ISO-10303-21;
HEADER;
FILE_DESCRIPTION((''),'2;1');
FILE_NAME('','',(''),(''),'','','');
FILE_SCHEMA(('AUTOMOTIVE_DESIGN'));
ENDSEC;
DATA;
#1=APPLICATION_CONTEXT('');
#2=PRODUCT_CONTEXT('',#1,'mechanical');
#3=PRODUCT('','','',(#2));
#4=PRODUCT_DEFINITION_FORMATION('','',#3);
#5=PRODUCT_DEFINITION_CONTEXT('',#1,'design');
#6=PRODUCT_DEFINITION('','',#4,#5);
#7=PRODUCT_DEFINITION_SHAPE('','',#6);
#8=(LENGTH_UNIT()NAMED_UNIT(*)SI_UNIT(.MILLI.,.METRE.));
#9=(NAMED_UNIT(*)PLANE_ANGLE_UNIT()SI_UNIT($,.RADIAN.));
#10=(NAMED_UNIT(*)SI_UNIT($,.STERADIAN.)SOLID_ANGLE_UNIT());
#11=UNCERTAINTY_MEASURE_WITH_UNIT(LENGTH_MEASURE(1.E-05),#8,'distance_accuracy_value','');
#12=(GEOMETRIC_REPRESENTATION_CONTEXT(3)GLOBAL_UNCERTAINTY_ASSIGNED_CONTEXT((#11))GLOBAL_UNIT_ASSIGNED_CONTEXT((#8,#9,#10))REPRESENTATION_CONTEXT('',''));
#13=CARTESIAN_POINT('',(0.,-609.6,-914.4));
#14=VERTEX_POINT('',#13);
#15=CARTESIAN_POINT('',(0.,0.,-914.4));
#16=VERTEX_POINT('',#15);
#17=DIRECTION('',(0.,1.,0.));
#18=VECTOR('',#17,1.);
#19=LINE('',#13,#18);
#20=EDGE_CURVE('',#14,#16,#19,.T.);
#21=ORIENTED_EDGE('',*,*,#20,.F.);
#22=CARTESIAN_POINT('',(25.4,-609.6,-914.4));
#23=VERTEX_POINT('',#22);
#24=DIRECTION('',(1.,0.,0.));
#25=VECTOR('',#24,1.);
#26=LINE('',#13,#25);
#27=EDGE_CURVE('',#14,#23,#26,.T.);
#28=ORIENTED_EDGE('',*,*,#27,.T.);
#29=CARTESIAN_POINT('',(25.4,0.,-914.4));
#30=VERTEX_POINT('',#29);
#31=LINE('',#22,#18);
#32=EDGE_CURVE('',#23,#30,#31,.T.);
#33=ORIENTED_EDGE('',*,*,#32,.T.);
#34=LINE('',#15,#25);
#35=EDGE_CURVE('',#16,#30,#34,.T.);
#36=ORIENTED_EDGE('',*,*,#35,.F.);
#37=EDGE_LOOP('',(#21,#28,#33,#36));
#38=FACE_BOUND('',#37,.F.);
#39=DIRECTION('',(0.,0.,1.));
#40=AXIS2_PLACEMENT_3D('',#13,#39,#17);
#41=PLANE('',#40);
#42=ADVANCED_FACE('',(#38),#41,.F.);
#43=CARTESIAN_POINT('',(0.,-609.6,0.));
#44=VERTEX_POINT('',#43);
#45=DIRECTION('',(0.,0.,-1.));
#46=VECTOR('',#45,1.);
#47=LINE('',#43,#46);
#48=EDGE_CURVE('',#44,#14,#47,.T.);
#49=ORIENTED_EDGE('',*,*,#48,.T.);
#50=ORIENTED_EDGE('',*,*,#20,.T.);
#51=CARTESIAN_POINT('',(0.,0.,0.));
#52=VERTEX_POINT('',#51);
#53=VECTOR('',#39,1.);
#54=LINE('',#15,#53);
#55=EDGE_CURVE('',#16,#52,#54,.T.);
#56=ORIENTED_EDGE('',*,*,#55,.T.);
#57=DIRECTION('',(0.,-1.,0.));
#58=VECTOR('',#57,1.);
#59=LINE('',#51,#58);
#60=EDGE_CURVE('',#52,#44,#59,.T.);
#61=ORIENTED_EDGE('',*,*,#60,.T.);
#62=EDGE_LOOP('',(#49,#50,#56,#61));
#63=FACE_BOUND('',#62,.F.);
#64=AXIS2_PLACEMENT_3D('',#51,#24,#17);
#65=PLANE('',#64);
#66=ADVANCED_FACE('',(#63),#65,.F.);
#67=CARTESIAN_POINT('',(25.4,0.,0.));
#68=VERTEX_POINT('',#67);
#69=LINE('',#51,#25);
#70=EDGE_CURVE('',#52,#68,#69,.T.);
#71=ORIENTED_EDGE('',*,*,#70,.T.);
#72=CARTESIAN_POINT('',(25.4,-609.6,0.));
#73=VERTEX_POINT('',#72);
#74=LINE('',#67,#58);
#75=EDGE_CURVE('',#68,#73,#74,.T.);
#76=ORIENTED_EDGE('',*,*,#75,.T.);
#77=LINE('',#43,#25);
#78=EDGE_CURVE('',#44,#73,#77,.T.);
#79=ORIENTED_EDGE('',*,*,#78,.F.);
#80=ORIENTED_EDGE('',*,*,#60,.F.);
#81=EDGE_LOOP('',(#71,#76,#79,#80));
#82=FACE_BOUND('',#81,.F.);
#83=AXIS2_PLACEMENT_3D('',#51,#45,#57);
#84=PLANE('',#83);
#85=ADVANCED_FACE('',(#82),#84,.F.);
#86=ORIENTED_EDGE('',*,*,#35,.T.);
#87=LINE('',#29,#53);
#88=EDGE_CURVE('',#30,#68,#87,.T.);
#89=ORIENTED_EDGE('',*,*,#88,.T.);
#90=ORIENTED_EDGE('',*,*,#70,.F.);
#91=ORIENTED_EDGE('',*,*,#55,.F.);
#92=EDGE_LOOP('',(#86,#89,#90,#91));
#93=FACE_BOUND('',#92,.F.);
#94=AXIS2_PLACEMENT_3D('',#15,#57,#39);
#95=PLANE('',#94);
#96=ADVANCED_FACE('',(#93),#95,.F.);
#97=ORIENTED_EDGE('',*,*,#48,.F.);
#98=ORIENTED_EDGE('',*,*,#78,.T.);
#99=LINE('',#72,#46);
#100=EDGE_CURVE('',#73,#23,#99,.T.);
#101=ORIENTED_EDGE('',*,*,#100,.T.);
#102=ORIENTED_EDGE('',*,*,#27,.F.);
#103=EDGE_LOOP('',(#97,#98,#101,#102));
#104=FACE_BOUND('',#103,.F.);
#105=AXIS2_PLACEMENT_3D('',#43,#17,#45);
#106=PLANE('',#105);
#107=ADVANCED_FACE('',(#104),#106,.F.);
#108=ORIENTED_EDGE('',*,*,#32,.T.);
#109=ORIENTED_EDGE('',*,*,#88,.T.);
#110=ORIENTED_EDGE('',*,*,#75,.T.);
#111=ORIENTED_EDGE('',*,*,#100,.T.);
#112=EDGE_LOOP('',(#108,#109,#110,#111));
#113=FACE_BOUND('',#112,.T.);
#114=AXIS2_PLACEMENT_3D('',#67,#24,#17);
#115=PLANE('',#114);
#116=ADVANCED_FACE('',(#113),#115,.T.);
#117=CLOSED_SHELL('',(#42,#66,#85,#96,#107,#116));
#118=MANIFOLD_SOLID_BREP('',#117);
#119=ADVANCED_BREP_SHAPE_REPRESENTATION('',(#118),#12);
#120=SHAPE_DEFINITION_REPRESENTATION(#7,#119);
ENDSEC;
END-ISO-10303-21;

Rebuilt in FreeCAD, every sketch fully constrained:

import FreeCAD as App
import Part
import Sketcher

V = App.Vector
Q = App.Units.Quantity

doc = App.newDocument("Part")
body = doc.addObject("PartDesign::Body", "Body")

# Sketch on YZ plane
sketch1 = doc.addObject("Sketcher::SketchObject", "Sketch")
body.addObject(sketch1)
sketch1.AttachmentSupport = (doc.YZ_Plane, [""])
sketch1.MapMode = "FlatFace"
sketch1.addGeometry([
    Part.LineSegment(V(0, -914.4, 0), V(0, 0, 0)),
    Part.LineSegment(V(0, 0, 0), V(-609.6, 0, 0)),
    Part.LineSegment(V(-609.6, 0, 0), V(-609.6, -914.4, 0)),
    Part.LineSegment(V(-609.6, -914.4, 0), V(0, -914.4, 0)),
], False)
sketch1.addConstraint([
    Sketcher.Constraint("Coincident", 0, 2, 1, 1),
    Sketcher.Constraint("Coincident", 1, 2, 2, 1),
    Sketcher.Constraint("Coincident", 2, 2, 3, 1),
    Sketcher.Constraint("Coincident", 3, 2, 0, 1),
    Sketcher.Constraint("Vertical", 0),
    Sketcher.Constraint("Horizontal", 1),
    Sketcher.Constraint("Vertical", 2),
    Sketcher.Constraint("Horizontal", 3),
    Sketcher.Constraint("Coincident", 0, 2, -1, 1),
    Sketcher.Constraint("DistanceX", 1, 2, 1, 1, Q("24 in")),
    Sketcher.Constraint("DistanceY", 0, 1, 0, 2, Q("36 in")),
])
pad1 = doc.addObject("PartDesign::Pad", "Pad")
body.addObject(pad1)
pad1.Profile = sketch1
pad1.Length = Q("1 in")

doc.recompute()
